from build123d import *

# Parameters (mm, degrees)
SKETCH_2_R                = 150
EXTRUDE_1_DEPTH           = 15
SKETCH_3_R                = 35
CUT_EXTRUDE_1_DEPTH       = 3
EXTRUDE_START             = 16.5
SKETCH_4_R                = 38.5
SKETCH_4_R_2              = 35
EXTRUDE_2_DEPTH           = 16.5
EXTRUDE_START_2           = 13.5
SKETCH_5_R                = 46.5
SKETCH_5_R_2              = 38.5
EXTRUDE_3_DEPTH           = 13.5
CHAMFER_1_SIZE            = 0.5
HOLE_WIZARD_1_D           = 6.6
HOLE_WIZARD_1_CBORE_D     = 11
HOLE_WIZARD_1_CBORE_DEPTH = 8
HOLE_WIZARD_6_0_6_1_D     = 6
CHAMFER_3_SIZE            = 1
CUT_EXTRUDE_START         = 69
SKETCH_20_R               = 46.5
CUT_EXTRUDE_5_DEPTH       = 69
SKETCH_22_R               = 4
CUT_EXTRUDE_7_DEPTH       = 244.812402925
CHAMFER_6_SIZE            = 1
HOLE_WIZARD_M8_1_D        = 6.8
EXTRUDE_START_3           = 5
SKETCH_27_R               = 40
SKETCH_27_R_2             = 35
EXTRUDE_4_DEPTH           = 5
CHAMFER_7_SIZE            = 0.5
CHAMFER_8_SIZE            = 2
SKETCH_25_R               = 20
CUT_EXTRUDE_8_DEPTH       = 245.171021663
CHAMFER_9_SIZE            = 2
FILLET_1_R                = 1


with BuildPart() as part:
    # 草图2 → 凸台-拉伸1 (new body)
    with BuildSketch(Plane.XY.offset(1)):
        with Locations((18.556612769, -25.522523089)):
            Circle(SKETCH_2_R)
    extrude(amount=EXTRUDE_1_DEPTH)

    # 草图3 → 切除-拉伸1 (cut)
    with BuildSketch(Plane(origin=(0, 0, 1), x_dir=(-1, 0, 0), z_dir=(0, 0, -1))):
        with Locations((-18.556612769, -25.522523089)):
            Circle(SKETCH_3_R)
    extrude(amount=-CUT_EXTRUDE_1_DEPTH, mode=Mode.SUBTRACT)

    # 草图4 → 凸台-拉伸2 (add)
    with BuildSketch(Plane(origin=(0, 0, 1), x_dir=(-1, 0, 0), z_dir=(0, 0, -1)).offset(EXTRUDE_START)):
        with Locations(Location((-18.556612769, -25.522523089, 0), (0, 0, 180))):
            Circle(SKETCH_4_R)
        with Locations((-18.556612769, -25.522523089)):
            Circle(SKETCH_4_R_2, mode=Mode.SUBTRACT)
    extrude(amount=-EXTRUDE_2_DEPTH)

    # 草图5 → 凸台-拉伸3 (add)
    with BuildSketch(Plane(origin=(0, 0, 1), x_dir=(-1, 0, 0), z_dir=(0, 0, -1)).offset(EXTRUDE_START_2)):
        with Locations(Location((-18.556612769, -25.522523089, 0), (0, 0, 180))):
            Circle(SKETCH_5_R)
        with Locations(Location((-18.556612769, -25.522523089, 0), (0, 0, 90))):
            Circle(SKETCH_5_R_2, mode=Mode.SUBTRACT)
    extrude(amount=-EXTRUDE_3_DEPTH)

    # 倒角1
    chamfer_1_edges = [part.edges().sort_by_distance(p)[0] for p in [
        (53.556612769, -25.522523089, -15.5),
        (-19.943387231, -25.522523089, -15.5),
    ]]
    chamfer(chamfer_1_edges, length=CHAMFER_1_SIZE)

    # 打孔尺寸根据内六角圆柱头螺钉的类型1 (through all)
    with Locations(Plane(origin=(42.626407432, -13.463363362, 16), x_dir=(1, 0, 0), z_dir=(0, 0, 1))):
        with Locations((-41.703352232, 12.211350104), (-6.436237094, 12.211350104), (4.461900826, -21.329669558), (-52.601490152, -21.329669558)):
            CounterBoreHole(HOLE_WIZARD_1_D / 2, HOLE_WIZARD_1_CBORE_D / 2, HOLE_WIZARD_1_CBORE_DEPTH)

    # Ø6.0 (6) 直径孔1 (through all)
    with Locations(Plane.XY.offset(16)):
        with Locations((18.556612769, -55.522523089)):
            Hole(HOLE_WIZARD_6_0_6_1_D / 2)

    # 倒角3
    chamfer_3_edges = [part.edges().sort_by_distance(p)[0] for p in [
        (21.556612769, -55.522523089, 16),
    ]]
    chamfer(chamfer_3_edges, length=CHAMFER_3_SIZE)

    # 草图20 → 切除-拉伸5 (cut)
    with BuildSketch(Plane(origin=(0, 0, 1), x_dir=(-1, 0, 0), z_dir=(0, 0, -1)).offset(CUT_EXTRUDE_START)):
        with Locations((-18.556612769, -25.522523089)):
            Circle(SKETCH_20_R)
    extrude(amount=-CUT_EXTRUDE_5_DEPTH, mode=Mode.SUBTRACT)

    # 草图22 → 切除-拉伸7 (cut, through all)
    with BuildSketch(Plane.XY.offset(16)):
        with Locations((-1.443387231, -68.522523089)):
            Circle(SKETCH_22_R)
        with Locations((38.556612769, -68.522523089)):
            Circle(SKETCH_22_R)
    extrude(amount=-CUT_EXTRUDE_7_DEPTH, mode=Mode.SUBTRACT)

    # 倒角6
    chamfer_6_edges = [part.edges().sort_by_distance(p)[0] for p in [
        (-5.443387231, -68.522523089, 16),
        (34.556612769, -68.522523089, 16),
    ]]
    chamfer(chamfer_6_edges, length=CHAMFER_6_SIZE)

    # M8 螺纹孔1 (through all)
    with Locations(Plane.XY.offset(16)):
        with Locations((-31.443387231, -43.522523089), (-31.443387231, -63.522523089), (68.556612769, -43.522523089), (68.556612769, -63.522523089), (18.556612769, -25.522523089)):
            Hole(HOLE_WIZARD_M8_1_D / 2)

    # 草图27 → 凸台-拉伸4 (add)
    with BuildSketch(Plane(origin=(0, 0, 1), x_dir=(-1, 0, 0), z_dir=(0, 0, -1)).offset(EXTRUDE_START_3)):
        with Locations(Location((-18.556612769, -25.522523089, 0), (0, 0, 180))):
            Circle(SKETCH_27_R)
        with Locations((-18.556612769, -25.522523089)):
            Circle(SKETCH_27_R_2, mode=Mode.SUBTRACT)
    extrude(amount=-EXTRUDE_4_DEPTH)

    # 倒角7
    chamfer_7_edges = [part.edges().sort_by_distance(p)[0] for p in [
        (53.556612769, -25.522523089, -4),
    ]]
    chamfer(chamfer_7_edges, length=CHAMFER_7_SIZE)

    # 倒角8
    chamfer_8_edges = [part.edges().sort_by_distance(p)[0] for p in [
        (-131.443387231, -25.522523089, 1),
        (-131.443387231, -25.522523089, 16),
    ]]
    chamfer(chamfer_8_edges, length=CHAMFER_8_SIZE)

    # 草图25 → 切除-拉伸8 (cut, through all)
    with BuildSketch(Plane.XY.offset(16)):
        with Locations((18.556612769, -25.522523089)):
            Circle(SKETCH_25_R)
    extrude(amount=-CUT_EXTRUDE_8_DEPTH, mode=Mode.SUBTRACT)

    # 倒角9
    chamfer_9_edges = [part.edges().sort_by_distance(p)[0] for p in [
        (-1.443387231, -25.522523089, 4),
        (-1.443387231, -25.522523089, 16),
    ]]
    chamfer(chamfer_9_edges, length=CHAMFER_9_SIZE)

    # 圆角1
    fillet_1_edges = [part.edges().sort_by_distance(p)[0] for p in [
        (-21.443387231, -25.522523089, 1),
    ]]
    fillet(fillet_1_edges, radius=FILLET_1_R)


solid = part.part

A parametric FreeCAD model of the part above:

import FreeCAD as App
import Part
import Sketcher

V = App.Vector


def edges_at(feature, points):
    """Names of the edges that pass closest to the given points."""
    edges = feature.Shape.Edges
    near = lambda p: min(range(len(edges)), key=lambda i: edges[i].distToShape(Part.Vertex(*p))[0])
    return sorted({f"Edge{near(p) + 1}" for p in points})

doc = App.newDocument("Part")
params = doc.addObject("Spreadsheet::Sheet", "Params")
for row, (alias, value) in enumerate([
    ("sketch1_diameter", "300 mm"),
    ("pad1_length", "15 mm"),
    ("sketch2_diameter", "70 mm"),
    ("pocket1_length", "3 mm"),
    ("sketch3_diameter", "77 mm"),
    ("sketch3_diameter2", "70 mm"),
    ("pad2_length", "16.5 mm"),
    ("sketch4_diameter", "93 mm"),
    ("sketch4_diameter2", "77 mm"),
    ("pad3_length", "13.5 mm"),
    ("chamfer_size", "0.5 mm"),
    ("sketch5_diameter", "6.6 mm"),
    ("hole_diameter", "6.6 mm"),
    ("hole_cbore_diameter", "11 mm"),
    ("hole_cbore_depth", "8 mm"),
    ("sketch6_diameter", "6 mm"),
    ("hole2_diameter", "6 mm"),
    ("chamfer2_size", "1 mm"),
    ("sketch7_diameter", "93 mm"),
    ("pocket2_length", "69 mm"),
    ("sketch8_diameter", "8 mm"),
    ("chamfer3_size", "1 mm"),
    ("sketch9_diameter", "6.8 mm"),
    ("hole3_diameter", "6.8 mm"),
    ("sketch10_diameter", "80 mm"),
    ("sketch10_diameter2", "70 mm"),
    ("pad4_length", "5 mm"),
    ("chamfer4_size", "0.5 mm"),
    ("chamfer5_size", "2 mm"),
    ("sketch11_diameter", "40 mm"),
    ("chamfer6_size", "2 mm"),
    ("fillet_radius", "1 mm"),
], start=1):
    params.set(f"A{row}", alias)
    params.set(f"B{row}", "=" + value)
    params.setAlias(f"B{row}", alias)

body = doc.addObject("PartDesign::Body", "Body")

# Sketch on XY plane
sketch1 = doc.addObject("Sketcher::SketchObject", "Sketch")
body.addObject(sketch1)
sketch1.AttachmentSupport = (doc.XY_Plane, [""])
sketch1.MapMode = "FlatFace"
sketch1.AttachmentOffset = App.Placement(V(0, 0, 1), App.Rotation())
sketch1.addGeometry(Part.Circle(V(18.556613, -25.522523, 0), V(0, 0, 1), 150), False)
sketch1.addConstraint(Sketcher.Constraint("Diameter", 0, 300.0))
sketch1.addConstraint(Sketcher.Constraint("DistanceX", -1, 1, 0, 3, 18.556613))
sketch1.addConstraint(Sketcher.Constraint("DistanceY", 0, 3, -1, 1, 25.522523))
sketch1.setExpression("Constraints[0]", "Params.sketch1_diameter")
pad1 = doc.addObject("PartDesign::Pad", "Pad")
body.addObject(pad1)
pad1.Profile = sketch1
pad1.setExpression("Length", "Params.pad1_length")

# Sketch on XY plane
sketch2 = doc.addObject("Sketcher::SketchObject", "Sketch001")
body.addObject(sketch2)
sketch2.AttachmentSupport = (doc.XY_Plane, [""])
sketch2.MapMode = "FlatFace"
sketch2.AttachmentOffset = App.Placement(V(0, 0, 1), App.Rotation())
sketch2.addGeometry(Part.Circle(V(18.556613, -25.522523, 0), V(0, 0, 1), 35), False)
sketch2.addConstraint(Sketcher.Constraint("Diameter", 0, 70.0))
sketch2.addConstraint(Sketcher.Constraint("DistanceX", -1, 1, 0, 3, 18.556613))
sketch2.addConstraint(Sketcher.Constraint("DistanceY", 0, 3, -1, 1, 25.522523))
sketch2.setExpression("Constraints[0]", "Params.sketch2_diameter")
pocket1 = doc.addObject("PartDesign::Pocket", "Pocket")
body.addObject(pocket1)
pocket1.Profile = sketch2
pocket1.setExpression("Length", "Params.pocket1_length")
pocket1.Reversed = True

# Sketch on XY plane
sketch3 = doc.addObject("Sketcher::SketchObject", "Sketch002")
body.addObject(sketch3)
sketch3.AttachmentSupport = (doc.XY_Plane, [""])
sketch3.MapMode = "FlatFace"
sketch3.AttachmentOffset = App.Placement(V(0, 0, -15.5), App.Rotation())
sketch3.addGeometry(Part.Circle(V(18.556613, -25.522523, 0), V(0, 0, 1), 38.5), False)
sketch3.addGeometry(Part.Circle(V(18.556613, -25.522523, 0), V(0, 0, 1), 35), False)
sketch3.addConstraint(Sketcher.Constraint("Coincident", 1, 3, 0, 3))
sketch3.addConstraint(Sketcher.Constraint("Diameter", 0, 77.0))
sketch3.addConstraint(Sketcher.Constraint("Diameter", 1, 70.0))
sketch3.addConstraint(Sketcher.Constraint("DistanceX", -1, 1, 0, 3, 18.556613))
sketch3.addConstraint(Sketcher.Constraint("DistanceY", 0, 3, -1, 1, 25.522523))
sketch3.setExpression("Constraints[1]", "Params.sketch3_diameter")
sketch3.setExpression("Constraints[2]", "Params.sketch3_diameter2")
pad2 = doc.addObject("PartDesign::Pad", "Pad001")
body.addObject(pad2)
pad2.Profile = sketch3
pad2.setExpression("Length", "Params.pad2_length")

# Sketch on XY plane
sketch4 = doc.addObject("Sketcher::SketchObject", "Sketch003")
body.addObject(sketch4)
sketch4.AttachmentSupport = (doc.XY_Plane, [""])
sketch4.MapMode = "FlatFace"
sketch4.AttachmentOffset = App.Placement(V(0, 0, -12.5), App.Rotation())
sketch4.addGeometry(Part.Circle(V(18.556613, -25.522523, 0), V(0, 0, 1), 46.5), False)
sketch4.addGeometry(Part.Circle(V(18.556613, -25.522523, 0), V(0, 0, 1), 38.5), False)
sketch4.addConstraint(Sketcher.Constraint("Coincident", 1, 3, 0, 3))
sketch4.addConstraint(Sketcher.Constraint("Diameter", 0, 93.0))
sketch4.addConstraint(Sketcher.Constraint("Diameter", 1, 77.0))
sketch4.addConstraint(Sketcher.Constraint("DistanceX", -1, 1, 0, 3, 18.556613))
sketch4.addConstraint(Sketcher.Constraint("DistanceY", 0, 3, -1, 1, 25.522523))
sketch4.setExpression("Constraints[1]", "Params.sketch4_diameter")
sketch4.setExpression("Constraints[2]", "Params.sketch4_diameter2")
pad3 = doc.addObject("PartDesign::Pad", "Pad002")
body.addObject(pad3)
pad3.Profile = sketch4
pad3.setExpression("Length", "Params.pad3_length")
doc.recompute()

chamfer = doc.addObject("PartDesign::Chamfer", "Chamfer")
body.addObject(chamfer)
chamfer.Base = (pad3, edges_at(pad3, [(53.557, -25.523, -15.5), (-19.943, -25.523, -15.5)]))
chamfer.setExpression("Size", "Params.chamfer_size")

# Sketch on XY plane
sketch5 = doc.addObject("Sketcher::SketchObject", "Sketch004")
body.addObject(sketch5)
sketch5.AttachmentSupport = (doc.XY_Plane, [""])
sketch5.MapMode = "FlatFace"
sketch5.AttachmentOffset = App.Placement(V(0, 0, 16), App.Rotation())
sketch5.addGeometry(Part.Circle(V(0.923055, -1.252013, 0), V(0, 0, 1), 3.3), False)
sketch5.addGeometry(Part.Circle(V(36.19017, -1.252013, 0), V(0, 0, 1), 3.3), False)
sketch5.addGeometry(Part.Circle(V(47.088308, -34.793033, 0), V(0, 0, 1), 3.3), False)
sketch5.addGeometry(Part.Circle(V(-9.975083, -34.793033, 0), V(0, 0, 1), 3.3), False)
sketch5.addConstraint(Sketcher.Constraint("Equal", 0, 1))
sketch5.addConstraint(Sketcher.Constraint("Equal", 1, 2))
sketch5.addConstraint(Sketcher.Constraint("Equal", 2, 3))
sketch5.addConstraint(Sketcher.Constraint("Horizontal", 0, 3, 1, 3))
sketch5.addConstraint(Sketcher.Constraint("Horizontal", 2, 3, 3, 3))
sketch5.addConstraint(Sketcher.Constraint("Diameter", 0, 6.6))
sketch5.addConstraint(Sketcher.Constraint("DistanceX", -1, 1, 1, 3, 36.19017))
sketch5.addConstraint(Sketcher.Constraint("DistanceX", -1, 1, 2, 3, 47.088308))
sketch5.addConstraint(Sketcher.Constraint("DistanceY", 2, 3, 1, 3, 33.54102))
sketch5.addConstraint(Sketcher.Constraint("DistanceX", 3, 3, 2, 3, 57.063391))
sketch5.addConstraint(Sketcher.Constraint("DistanceX", -1, 1, 0, 3, 0.923055))
sketch5.addConstraint(Sketcher.Constraint("DistanceY", 0, 3, -1, 1, 1.252013))
sketch5.setExpression("Constraints[5]", "Params.sketch5_diameter")
doc.recompute()
hole = doc.addObject("PartDesign::Hole", "Hole")
body.addObject(hole)
hole.Profile = sketch5
hole.ThreadType = "None"
hole.setExpression("Diameter", "Params.hole_diameter")
hole.DepthType = "ThroughAll"
hole.HoleCutType = "Counterbore"
hole.setExpression("HoleCutDiameter", "Params.hole_cbore_diameter")
hole.setExpression("HoleCutDepth", "Params.hole_cbore_depth")

# Sketch on XY plane
sketch6 = doc.addObject("Sketcher::SketchObject", "Sketch005")
body.addObject(sketch6)
sketch6.AttachmentSupport = (doc.XY_Plane, [""])
sketch6.MapMode = "FlatFace"
sketch6.AttachmentOffset = App.Placement(V(0, 0, 16), App.Rotation())
sketch6.addGeometry(Part.Circle(V(18.556613, -55.522523, 0), V(0, 0, 1), 3), False)
sketch6.addConstraint(Sketcher.Constraint("Diameter", 0, 6.0))
sketch6.addConstraint(Sketcher.Constraint("DistanceX", -1, 1, 0, 3, 18.556613))
sketch6.addConstraint(Sketcher.Constraint("DistanceY", 0, 3, -1, 1, 55.522523))
sketch6.setExpression("Constraints[0]", "Params.sketch6_diameter")
doc.recompute()
hole2 = doc.addObject("PartDesign::Hole", "Hole001")
body.addObject(hole2)
hole2.Profile = sketch6
hole2.ThreadType = "None"
hole2.setExpression("Diameter", "Params.hole2_diameter")
hole2.DepthType = "ThroughAll"
doc.recompute()

chamfer2 = doc.addObject("PartDesign::Chamfer", "Chamfer001")
body.addObject(chamfer2)
chamfer2.Base = (hole2, edges_at(hole2, [(21.557, -55.523, 16)]))
chamfer2.setExpression("Size", "Params.chamfer2_size")

# Sketch on XY plane
sketch7 = doc.addObject("Sketcher::SketchObject", "Sketch006")
body.addObject(sketch7)
sketch7.AttachmentSupport = (doc.XY_Plane, [""])
sketch7.MapMode = "FlatFace"
sketch7.AttachmentOffset = App.Placement(V(0, 0, -68), App.Rotation())
sketch7.addGeometry(Part.Circle(V(18.556613, -25.522523, 0), V(0, 0, 1), 46.5), False)
sketch7.addConstraint(Sketcher.Constraint("Diameter", 0, 93.0))
sketch7.addConstraint(Sketcher.Constraint("DistanceX", -1, 1, 0, 3, 18.556613))
sketch7.addConstraint(Sketcher.Constraint("DistanceY", 0, 3, -1, 1, 25.522523))
sketch7.setExpression("Constraints[0]", "Params.sketch7_diameter")
pocket2 = doc.addObject("PartDesign::Pocket", "Pocket001")
body.addObject(pocket2)
pocket2.Profile = sketch7
pocket2.setExpression("Length", "Params.pocket2_length")
pocket2.Reversed = True

# Sketch on XY plane
sketch8 = doc.addObject("Sketcher::SketchObject", "Sketch007")
body.addObject(sketch8)
sketch8.AttachmentSupport = (doc.XY_Plane, [""])
sketch8.MapMode = "FlatFace"
sketch8.AttachmentOffset = App.Placement(V(0, 0, 16), App.Rotation())
sketch8.addGeometry(Part.Circle(V(-1.443387, -68.522523, 0), V(0, 0, 1), 4), False)
sketch8.addGeometry(Part.Circle(V(38.556613, -68.522523, 0), V(0, 0, 1), 4), False)
sketch8.addConstraint(Sketcher.Constraint("Equal", 0, 1))
sketch8.addConstraint(Sketcher.Constraint("Horizontal", 0, 3, 1, 3))
sketch8.addConstraint(Sketcher.Constraint("Diameter", 0, 8.0))
sketch8.addConstraint(Sketcher.Constraint("DistanceX", 0, 3, 1, 3, 40.0))
sketch8.addConstraint(Sketcher.Constraint("DistanceX", 0, 3, -1, 1, 1.443387))
sketch8.addConstraint(Sketcher.Constraint("DistanceY", 0, 3, -1, 1, 68.522523))
sketch8.setExpression("Constraints[2]", "Params.sketch8_diameter")
pocket3 = doc.addObject("PartDesign::Pocket", "Pocket002")
body.addObject(pocket3)
pocket3.Profile = sketch8
pocket3.Type = "ThroughAll"
doc.recompute()

chamfer3 = doc.addObject("PartDesign::Chamfer", "Chamfer002")
body.addObject(chamfer3)
chamfer3.Base = (pocket3, edges_at(pocket3, [(-5.443, -68.523, 16), (34.557, -68.523, 16)]))
chamfer3.setExpression("Size", "Params.chamfer3_size")

# Sketch on XY plane
sketch9 = doc.addObject("Sketcher::SketchObject", "Sketch008")
body.addObject(sketch9)
sketch9.AttachmentSupport = (doc.XY_Plane, [""])
sketch9.MapMode = "FlatFace"
sketch9.AttachmentOffset = App.Placement(V(0, 0, 16), App.Rotation())
sketch9.addGeometry(Part.Circle(V(-31.443387, -43.522523, 0), V(0, 0, 1), 3.4), False)
sketch9.addGeometry(Part.Circle(V(-31.443387, -63.522523, 0), V(0, 0, 1), 3.4), False)
sketch9.addGeometry(Part.Circle(V(68.556613, -43.522523, 0), V(0, 0, 1), 3.4), False)
sketch9.addGeometry(Part.Circle(V(68.556613, -63.522523, 0), V(0, 0, 1), 3.4), False)
sketch9.addGeometry(Part.Circle(V(18.556613, -25.522523, 0), V(0, 0, 1), 3.4), False)
sketch9.addConstraint(Sketcher.Constraint("Equal", 0, 1))
sketch9.addConstraint(Sketcher.Constraint("Equal", 1, 2))
sketch9.addConstraint(Sketcher.Constraint("Equal", 2, 3))
sketch9.addConstraint(Sketcher.Constraint("Equal", 3, 4))
sketch9.addConstraint(Sketcher.Constraint("Horizontal", 0, 3, 2, 3))
sketch9.addConstraint(Sketcher.Constraint("Horizontal", 1, 3, 3, 3))
sketch9.addConstraint(Sketcher.Constraint("Vertical", 0, 3, 1, 3))
sketch9.addConstraint(Sketcher.Constraint("Vertical", 2, 3, 3, 3))
sketch9.addConstraint(Sketcher.Constraint("Diameter", 0, 6.8))
sketch9.addConstraint(Sketcher.Constraint("DistanceY", 1, 3, 0, 3, 20.0))
sketch9.addConstraint(Sketcher.Constraint("DistanceX", 0, 3, 2, 3, 100.0))
sketch9.addConstraint(Sketcher.Constraint("DistanceX", 0, 3, 4, 3, 50.0))
sketch9.addConstraint(Sketcher.Constraint("DistanceY", 0, 3, 4, 3, 18.0))
sketch9.addConstraint(Sketcher.Constraint("DistanceX", 0, 3, -1, 1, 31.443387))
sketch9.addConstraint(Sketcher.Constraint("DistanceY", 0, 3, -1, 1, 43.522523))
sketch9.setExpression("Constraints[8]", "Params.sketch9_diameter")
doc.recompute()
hole3 = doc.addObject("PartDesign::Hole", "Hole002")
body.addObject(hole3)
hole3.Profile = sketch9
hole3.ThreadType = "None"
hole3.setExpression("Diameter", "Params.hole3_diameter")
hole3.DepthType = "ThroughAll"

# Sketch on XY plane
sketch10 = doc.addObject("Sketcher::SketchObject", "Sketch009")
body.addObject(sketch10)
sketch10.AttachmentSupport = (doc.XY_Plane, [""])
sketch10.MapMode = "FlatFace"
sketch10.AttachmentOffset = App.Placement(V(0, 0, -4), App.Rotation())
sketch10.addGeometry(Part.Circle(V(18.556613, -25.522523, 0), V(0, 0, 1), 40), False)
sketch10.addGeometry(Part.Circle(V(18.556613, -25.522523, 0), V(0, 0, 1), 35), False)
sketch10.addConstraint(Sketcher.Constraint("Coincident", 1, 3, 0, 3))
sketch10.addConstraint(Sketcher.Constraint("Diameter", 0, 80.0))
sketch10.addConstraint(Sketcher.Constraint("Diameter", 1, 70.0))
sketch10.addConstraint(Sketcher.Constraint("DistanceX", -1, 1, 0, 3, 18.556613))
sketch10.addConstraint(Sketcher.Constraint("DistanceY", 0, 3, -1, 1, 25.522523))
sketch10.setExpression("Constraints[1]", "Params.sketch10_diameter")
sketch10.setExpression("Constraints[2]", "Params.sketch10_diameter2")
pad4 = doc.addObject("PartDesign::Pad", "Pad003")
body.addObject(pad4)
pad4.Profile = sketch10
pad4.setExpression("Length", "Params.pad4_length")
doc.recompute()

chamfer4 = doc.addObject("PartDesign::Chamfer", "Chamfer003")
body.addObject(chamfer4)
chamfer4.Base = (pad4, edges_at(pad4, [(53.557, -25.523, -4)]))
chamfer4.setExpression("Size", "Params.chamfer4_size")
doc.recompute()

chamfer5 = doc.addObject("PartDesign::Chamfer", "Chamfer004")
body.addObject(chamfer5)
chamfer5.Base = (chamfer4, edges_at(chamfer4, [(-131.443, -25.523, 1), (-131.443, -25.523, 16)]))
chamfer5.setExpression("Size", "Params.chamfer5_size")

# Sketch on XY plane
sketch11 = doc.addObject("Sketcher::SketchObject", "Sketch010")
body.addObject(sketch11)
sketch11.AttachmentSupport = (doc.XY_Plane, [""])
sketch11.MapMode = "FlatFace"
sketch11.AttachmentOffset = App.Placement(V(0, 0, 16), App.Rotation())
sketch11.addGeometry(Part.Circle(V(18.556613, -25.522523, 0), V(0, 0, 1), 20), False)
sketch11.addConstraint(Sketcher.Constraint("Diameter", 0, 40.0))
sketch11.addConstraint(Sketcher.Constraint("DistanceX", -1, 1, 0, 3, 18.556613))
sketch11.addConstraint(Sketcher.Constraint("DistanceY", 0, 3, -1, 1, 25.522523))
sketch11.setExpression("Constraints[0]", "Params.sketch11_diameter")
pocket4 = doc.addObject("PartDesign::Pocket", "Pocket003")
body.addObject(pocket4)
pocket4.Profile = sketch11
pocket4.Type = "ThroughAll"
doc.recompute()

chamfer6 = doc.addObject("PartDesign::Chamfer", "Chamfer005")
body.addObject(chamfer6)
chamfer6.Base = (pocket4, edges_at(pocket4, [(-1.443, -25.523, 4), (-1.443, -25.523, 16)]))
chamfer6.setExpression("Size", "Params.chamfer6_size")
doc.recompute()

fillet = doc.addObject("PartDesign::Fillet", "Fillet")
body.addObject(fillet)
fillet.Base = (chamfer6, edges_at(chamfer6, [(-21.443, -25.523, 1)]))
fillet.setExpression("Radius", "Params.fillet_radius")

doc.recompute()
